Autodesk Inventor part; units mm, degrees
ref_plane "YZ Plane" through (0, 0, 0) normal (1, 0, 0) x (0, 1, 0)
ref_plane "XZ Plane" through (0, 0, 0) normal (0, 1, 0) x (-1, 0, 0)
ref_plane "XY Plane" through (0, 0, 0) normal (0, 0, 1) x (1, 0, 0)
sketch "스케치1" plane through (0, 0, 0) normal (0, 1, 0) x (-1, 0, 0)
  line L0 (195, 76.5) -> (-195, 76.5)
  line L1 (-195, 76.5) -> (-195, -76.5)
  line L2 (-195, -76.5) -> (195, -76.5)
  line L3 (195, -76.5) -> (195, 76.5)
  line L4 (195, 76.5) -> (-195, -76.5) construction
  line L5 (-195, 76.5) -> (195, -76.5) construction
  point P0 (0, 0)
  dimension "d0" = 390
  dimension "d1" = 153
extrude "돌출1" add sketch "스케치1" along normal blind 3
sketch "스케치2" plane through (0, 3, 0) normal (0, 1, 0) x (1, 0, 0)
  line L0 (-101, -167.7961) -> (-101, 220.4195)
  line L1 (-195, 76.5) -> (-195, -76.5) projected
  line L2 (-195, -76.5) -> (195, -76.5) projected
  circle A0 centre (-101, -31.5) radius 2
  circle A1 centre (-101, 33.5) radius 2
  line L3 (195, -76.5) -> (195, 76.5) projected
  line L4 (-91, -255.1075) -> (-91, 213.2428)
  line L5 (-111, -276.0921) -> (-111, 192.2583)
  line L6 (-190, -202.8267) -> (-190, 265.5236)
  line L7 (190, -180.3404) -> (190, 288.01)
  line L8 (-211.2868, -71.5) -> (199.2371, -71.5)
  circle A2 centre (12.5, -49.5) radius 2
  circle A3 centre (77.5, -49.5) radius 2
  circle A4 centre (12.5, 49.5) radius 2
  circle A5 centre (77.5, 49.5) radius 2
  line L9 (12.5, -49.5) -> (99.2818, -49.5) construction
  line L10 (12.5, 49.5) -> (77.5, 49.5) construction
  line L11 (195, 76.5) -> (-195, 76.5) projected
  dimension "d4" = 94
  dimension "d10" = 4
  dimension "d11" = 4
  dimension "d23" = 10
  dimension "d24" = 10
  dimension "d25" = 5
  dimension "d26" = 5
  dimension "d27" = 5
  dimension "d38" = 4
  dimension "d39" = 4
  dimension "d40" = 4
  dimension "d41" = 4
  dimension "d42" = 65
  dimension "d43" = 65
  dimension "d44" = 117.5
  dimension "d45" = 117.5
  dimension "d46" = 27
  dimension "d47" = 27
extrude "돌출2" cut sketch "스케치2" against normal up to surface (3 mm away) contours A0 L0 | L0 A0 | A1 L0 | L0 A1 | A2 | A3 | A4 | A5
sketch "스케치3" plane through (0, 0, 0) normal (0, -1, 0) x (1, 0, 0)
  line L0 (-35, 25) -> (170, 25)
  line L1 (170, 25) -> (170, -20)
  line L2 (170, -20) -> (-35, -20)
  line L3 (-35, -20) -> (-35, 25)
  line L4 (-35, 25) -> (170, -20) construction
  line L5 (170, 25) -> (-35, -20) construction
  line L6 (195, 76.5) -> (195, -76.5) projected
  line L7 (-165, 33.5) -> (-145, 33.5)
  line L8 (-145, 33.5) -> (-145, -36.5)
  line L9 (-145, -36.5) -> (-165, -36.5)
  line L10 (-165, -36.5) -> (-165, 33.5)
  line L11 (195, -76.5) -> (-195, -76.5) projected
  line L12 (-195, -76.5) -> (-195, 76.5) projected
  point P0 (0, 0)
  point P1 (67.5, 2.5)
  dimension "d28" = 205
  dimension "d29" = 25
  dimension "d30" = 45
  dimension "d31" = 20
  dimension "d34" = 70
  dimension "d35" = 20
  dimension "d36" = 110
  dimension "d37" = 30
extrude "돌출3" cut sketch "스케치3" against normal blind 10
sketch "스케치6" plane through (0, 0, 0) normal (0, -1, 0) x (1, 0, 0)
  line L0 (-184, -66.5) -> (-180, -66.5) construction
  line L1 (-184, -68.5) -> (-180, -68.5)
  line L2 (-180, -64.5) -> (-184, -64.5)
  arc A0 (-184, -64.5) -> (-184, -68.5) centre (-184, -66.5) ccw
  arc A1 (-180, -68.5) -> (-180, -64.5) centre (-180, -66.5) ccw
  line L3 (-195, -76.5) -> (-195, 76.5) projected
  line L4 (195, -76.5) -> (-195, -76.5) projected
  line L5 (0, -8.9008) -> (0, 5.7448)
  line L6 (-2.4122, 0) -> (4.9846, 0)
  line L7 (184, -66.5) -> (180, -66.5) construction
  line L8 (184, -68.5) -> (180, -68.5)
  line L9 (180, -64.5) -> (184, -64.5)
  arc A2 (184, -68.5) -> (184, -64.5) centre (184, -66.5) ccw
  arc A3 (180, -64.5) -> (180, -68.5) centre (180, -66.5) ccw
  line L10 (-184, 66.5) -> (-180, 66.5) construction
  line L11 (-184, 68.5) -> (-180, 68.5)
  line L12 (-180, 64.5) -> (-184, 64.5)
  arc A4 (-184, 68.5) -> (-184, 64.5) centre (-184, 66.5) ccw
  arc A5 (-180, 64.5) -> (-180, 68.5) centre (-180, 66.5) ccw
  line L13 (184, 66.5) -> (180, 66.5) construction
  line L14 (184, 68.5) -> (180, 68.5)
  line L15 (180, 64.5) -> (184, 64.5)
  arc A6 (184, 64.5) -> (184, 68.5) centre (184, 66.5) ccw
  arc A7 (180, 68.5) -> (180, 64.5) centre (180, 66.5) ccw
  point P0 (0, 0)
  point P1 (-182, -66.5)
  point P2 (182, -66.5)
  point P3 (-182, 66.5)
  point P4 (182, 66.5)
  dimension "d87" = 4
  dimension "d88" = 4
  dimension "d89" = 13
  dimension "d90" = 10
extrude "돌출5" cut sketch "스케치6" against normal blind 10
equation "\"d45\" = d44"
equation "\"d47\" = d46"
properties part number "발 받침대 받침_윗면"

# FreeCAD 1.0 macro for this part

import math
import FreeCAD as App
import Part
import Sketcher
Q = App.Units.Quantity


def add_polygon(sketch, points):
    """Adds a closed chain of lines whose ends are joined by coincident constraints."""
    first, n = sketch.GeometryCount, len(points)
    for a, b in zip(points, points[1:] + points[:1]):
        sketch.addGeometry(Part.LineSegment(App.Vector(*a, 0), App.Vector(*b, 0)), False)
    for i in range(n):
        sketch.addConstraint(Sketcher.Constraint("Coincident", first + i, 2, first + (i + 1) % n, 1))

doc = App.newDocument("Part")
params = doc.addObject("Spreadsheet::Sheet", "Params")
for row, (alias, value) in enumerate([
    ("sketch1_width", "390 mm"),
    ("sketch1_height", "153 mm"),
    ("pad1_length", "3 mm"),
    ("sketch2_diameter", "4 mm"),
    ("pocket1_length", "3 mm"),
    ("sketch3_width", "205 mm"),
    ("sketch3_width2", "20 mm"),
    ("sketch3_height", "45 mm"),
    ("sketch3_height2", "70 mm"),
    ("pocket2_length", "10 mm"),
    ("sketch4_radius", "2 mm"),
    ("sketch4_width", "4 mm"),
    ("pocket3_length", "10 mm"),
], start=1):
    params.set(f"A{row}", alias)
    params.set(f"B{row}", "=" + value)
    params.setAlias(f"B{row}", alias)

body = doc.addObject("PartDesign::Body", "Body")

# Sketch on XZ plane
sketch1 = body.newObject("Sketcher::SketchObject", "Sketch")
sketch1.AttachmentSupport = (doc.getObject("XZ_Plane"), [""])
sketch1.MapMode = "FlatFace"
add_polygon(sketch1, [(-195, -76), (-195, 76), (195, 76), (195, -76)])  # lines 0-3
sketch1.addConstraint(Sketcher.Constraint("Vertical", 0))
sketch1.addConstraint(Sketcher.Constraint("Horizontal", 1))
sketch1.addConstraint(Sketcher.Constraint("Vertical", 2))
sketch1.addConstraint(Sketcher.Constraint("Horizontal", 3))
sketch1.addConstraint(Sketcher.Constraint("Symmetric", 0, 2, 2, 2, -1, 1))
sketch1.addConstraint(Sketcher.Constraint("DistanceX", 1, 1, 1, 2, Q("390 mm")))
sketch1.addConstraint(Sketcher.Constraint("DistanceY", 0, 1, 0, 2, Q("153 mm")))
sketch1.setExpression("Constraints[9]", "Params.sketch1_width")
sketch1.setExpression("Constraints[10]", "Params.sketch1_height")
pad1 = body.newObject("PartDesign::Pad", "Pad")
pad1.Profile = sketch1
pad1.setExpression("Length", "Params.pad1_length")
pad1.Reversed = True

# Sketch on XZ plane
sketch2 = body.newObject("Sketcher::SketchObject", "Sketch001")
sketch2.AttachmentSupport = (doc.getObject("XZ_Plane"), [""])
sketch2.MapMode = "FlatFace"
sketch2.AttachmentOffset = App.Placement(App.Vector(0, 0, -3), App.Rotation())
sketch2.addGeometry(Part.Circle(App.Vector(-101, 31.5, 0), App.Vector(0, 0, 1), 2), False)
sketch2.addGeometry(Part.Circle(App.Vector(-101, -33.5, 0), App.Vector(0, 0, 1), 2), False)
sketch2.addGeometry(Part.Circle(App.Vector(12.5, 49.5, 0), App.Vector(0, 0, 1), 2), False)
sketch2.addGeometry(Part.Circle(App.Vector(77.5, 49.5, 0), App.Vector(0, 0, 1), 2), False)
sketch2.addGeometry(Part.Circle(App.Vector(12.5, -49.5, 0), App.Vector(0, 0, 1), 2), False)
sketch2.addGeometry(Part.Circle(App.Vector(77.5, -49.5, 0), App.Vector(0, 0, 1), 2), False)
sketch2.addConstraint(Sketcher.Constraint("Equal", 0, 1))
sketch2.addConstraint(Sketcher.Constraint("Equal", 1, 2))
sketch2.addConstraint(Sketcher.Constraint("Equal", 2, 3))
sketch2.addConstraint(Sketcher.Constraint("Equal", 3, 4))
sketch2.addConstraint(Sketcher.Constraint("Equal", 4, 5))
sketch2.addConstraint(Sketcher.Constraint("Symmetric", 2, 3, 4, 3, -1))
sketch2.addConstraint(Sketcher.Constraint("Symmetric", 3, 3, 5, 3, -1))
sketch2.addConstraint(Sketcher.Constraint("Horizontal", 2, 3, 3, 3))
sketch2.addConstraint(Sketcher.Constraint("Vertical", 0, 3, 1, 3))
sketch2.addConstraint(Sketcher.Constraint("Diameter", 0, Q("4 mm")))
sketch2.addConstraint(Sketcher.Constraint("DistanceY", 1, 3, 0, 3, Q("65 mm")))
sketch2.addConstraint(Sketcher.Constraint("DistanceX", 2, 3, 3, 3, Q("65 mm")))
sketch2.addConstraint(Sketcher.Constraint("DistanceX", 0, 3, -1, 1, Q("101 mm")))
sketch2.addConstraint(Sketcher.Constraint("DistanceY", 0, 3, 2, 3, Q("18 mm")))
sketch2.addConstraint(Sketcher.Constraint("DistanceY", 4, 3, 2, 3, Q("99 mm")))
sketch2.addConstraint(Sketcher.Constraint("DistanceX", -1, 1, 2, 3, Q("12.5 mm")))
sketch2.setExpression("Constraints[9]", "Params.sketch2_diameter")
pocket1 = body.newObject("PartDesign::Pocket", "Pocket")
pocket1.Profile = sketch2
pocket1.setExpression("Length", "Params.pocket1_length")
pocket1.Reversed = True

# Sketch on XZ plane
sketch3 = body.newObject("Sketcher::SketchObject", "Sketch002")
sketch3.AttachmentSupport = (doc.getObject("XZ_Plane"), [""])
sketch3.MapMode = "FlatFace"
add_polygon(sketch3, [(170, 25), (-35, 25), (-35, -20), (170, -20)])  # lines 0-3
add_polygon(sketch3, [(-145, 34), (-165, 34), (-165, -36), (-145, -36)])  # lines 4-7
sketch3.addConstraint(Sketcher.Constraint("Horizontal", 0))
sketch3.addConstraint(Sketcher.Constraint("Vertical", 1))
sketch3.addConstraint(Sketcher.Constraint("Horizontal", 2))
sketch3.addConstraint(Sketcher.Constraint("Vertical", 3))
sketch3.addConstraint(Sketcher.Constraint("Horizontal", 4))
sketch3.addConstraint(Sketcher.Constraint("Vertical", 5))
sketch3.addConstraint(Sketcher.Constraint("Horizontal", 6))
sketch3.addConstraint(Sketcher.Constraint("Vertical", 7))
sketch3.addConstraint(Sketcher.Constraint("DistanceX", 0, 2, 0, 1, Q("205 mm")))
sketch3.addConstraint(Sketcher.Constraint("DistanceX", 4, 2, 4, 1, Q("20 mm")))
sketch3.addConstraint(Sketcher.Constraint("DistanceY", 1, 2, 1, 1, Q("45 mm")))
sketch3.addConstraint(Sketcher.Constraint("DistanceY", 5, 2, 5, 1, Q("70 mm")))
sketch3.addConstraint(Sketcher.Constraint("DistanceY", -1, 1, 0, 2, Q("25 mm")))
sketch3.addConstraint(Sketcher.Constraint("DistanceX", 6, 2, 1, 2, Q("110 mm")))
sketch3.addConstraint(Sketcher.Constraint("DistanceX", 0, 2, -1, 1, Q("35 mm")))
sketch3.addConstraint(Sketcher.Constraint("DistanceY", -1, 1, 4, 2, Q("33.5 mm")))
sketch3.setExpression("Constraints[16]", "Params.sketch3_width")
sketch3.setExpression("Constraints[17]", "Params.sketch3_width2")
sketch3.setExpression("Constraints[18]", "Params.sketch3_height")
sketch3.setExpression("Constraints[19]", "Params.sketch3_height2")
pocket2 = body.newObject("PartDesign::Pocket", "Pocket001")
pocket2.Profile = sketch3
pocket2.setExpression("Length", "Params.pocket2_length")

# Sketch on XZ plane
sketch4 = body.newObject("Sketcher::SketchObject", "Sketch003")
sketch4.AttachmentSupport = (doc.getObject("XZ_Plane"), [""])
sketch4.MapMode = "FlatFace"
sketch4.addGeometry(Part.ArcOfCircle(Part.Circle(App.Vector(-184, -66.5, 0), App.Vector(0, 0, 1), 2), math.radians(90), math.radians(270)), False)
sketch4.addGeometry(Part.LineSegment(App.Vector(-184, -68.5, 0), App.Vector(-180, -68.5, 0)), False)
sketch4.addGeometry(Part.ArcOfCircle(Part.Circle(App.Vector(-180, -66.5, 0), App.Vector(0, 0, 1), 2), math.radians(-90), math.radians(90)), False)
sketch4.addGeometry(Part.LineSegment(App.Vector(-180, -64.5, 0), App.Vector(-184, -64.5, 0)), False)
sketch4.addGeometry(Part.LineSegment(App.Vector(180, -68.5, 0), App.Vector(184, -68.5, 0)), False)
sketch4.addGeometry(Part.ArcOfCircle(Part.Circle(App.Vector(184, -66.5, 0), App.Vector(0, 0, 1), 2), math.radians(-90), math.radians(90)), False)
sketch4.addGeometry(Part.LineSegment(App.Vector(184, -64.5, 0), App.Vector(180, -64.5, 0)), False)
sketch4.addGeometry(Part.ArcOfCircle(Part.Circle(App.Vector(180, -66.5, 0), App.Vector(0, 0, 1), 2), math.radians(90), math.radians(270)), False)
sketch4.addGeometry(Part.LineSegment(App.Vector(-180, 68.5, 0), App.Vector(-184, 68.5, 0)), False)
sketch4.addGeometry(Part.ArcOfCircle(Part.Circle(App.Vector(-184, 66.5, 0), App.Vector(0, 0, 1), 2), math.radians(90), math.radians(270)), False)
sketch4.addGeometry(Part.LineSegment(App.Vector(-184, 64.5, 0), App.Vector(-180, 64.5, 0)), False)
sketch4.addGeometry(Part.ArcOfCircle(Part.Circle(App.Vector(-180, 66.5, 0), App.Vector(0, 0, 1), 2), math.radians(-90), math.radians(90)), False)
sketch4.addGeometry(Part.ArcOfCircle(Part.Circle(App.Vector(184, 66.5, 0), App.Vector(0, 0, 1), 2), math.radians(-90), math.radians(90)), False)
sketch4.addGeometry(Part.LineSegment(App.Vector(184, 68.5, 0), App.Vector(180, 68.5, 0)), False)
sketch4.addGeometry(Part.ArcOfCircle(Part.Circle(App.Vector(180, 66.5, 0), App.Vector(0, 0, 1), 2), math.radians(90), math.radians(270)), False)
sketch4.addGeometry(Part.LineSegment(App.Vector(180, 64.5, 0), App.Vector(184, 64.5, 0)), False)
sketch4.addConstraint(Sketcher.Constraint("Tangent", 0, 2, 1, 1))
sketch4.addConstraint(Sketcher.Constraint("Tangent", 1, 2, 2, 1))
sketch4.addConstraint(Sketcher.Constraint("Tangent", 2, 2, 3, 1))
sketch4.addConstraint(Sketcher.Constraint("Tangent", 3, 2, 0, 1))
sketch4.addConstraint(Sketcher.Constraint("Tangent", 4, 2, 5, 1))
sketch4.addConstraint(Sketcher.Constraint("Tangent", 5, 2, 6, 1))
sketch4.addConstraint(Sketcher.Constraint("Tangent", 6, 2, 7, 1))
sketch4.addConstraint(Sketcher.Constraint("Tangent", 7, 2, 4, 1))
sketch4.addConstraint(Sketcher.Constraint("Tangent", 8, 2, 9, 1))
sketch4.addConstraint(Sketcher.Constraint("Tangent", 9, 2, 10, 1))
sketch4.addConstraint(Sketcher.Constraint("Tangent", 10, 2, 11, 1))
sketch4.addConstraint(Sketcher.Constraint("Tangent", 11, 2, 8, 1))
sketch4.addConstraint(Sketcher.Constraint("Tangent", 12, 2, 13, 1))
sketch4.addConstraint(Sketcher.Constraint("Tangent", 13, 2, 14, 1))
sketch4.addConstraint(Sketcher.Constraint("Tangent", 14, 2, 15, 1))
sketch4.addConstraint(Sketcher.Constraint("Tangent", 15, 2, 12, 1))
sketch4.addConstraint(Sketcher.Constraint("Horizontal", 1))
sketch4.addConstraint(Sketcher.Constraint("Horizontal", 3))
sketch4.addConstraint(Sketcher.Constraint("Horizontal", 4))
sketch4.addConstraint(Sketcher.Constraint("Horizontal", 6))
sketch4.addConstraint(Sketcher.Constraint("Horizontal", 8))
sketch4.addConstraint(Sketcher.Constraint("Horizontal", 10))
sketch4.addConstraint(Sketcher.Constraint("Horizontal", 13))
sketch4.addConstraint(Sketcher.Constraint("Horizontal", 15))
sketch4.addConstraint(Sketcher.Constraint("Equal", 2, 5))
sketch4.addConstraint(Sketcher.Constraint("Equal", 7, 9))
sketch4.addConstraint(Sketcher.Constraint("Equal", 11, 12))
sketch4.addConstraint(Sketcher.Constraint("Symmetric", 5, 3, 9, 3, -1, 1))
sketch4.addConstraint(Sketcher.Constraint("Symmetric", 0, 3, 12, 3, -1, 1))
sketch4.addConstraint(Sketcher.Constraint("Symmetric", 0, 3, 5, 3, -2))
sketch4.addConstraint(Sketcher.Constraint("Vertical", 2, 3, 11, 3))
sketch4.addConstraint(Sketcher.Constraint("Vertical", 7, 3, 14, 3))
sketch4.addConstraint(Sketcher.Constraint("Equal", 3, 4))
sketch4.addConstraint(Sketcher.Constraint("Radius", 0, Q("2 mm")))
sketch4.addConstraint(Sketcher.Constraint("DistanceX", 1, 1, 1, 2, Q("4 mm")))
sketch4.addConstraint(Sketcher.Constraint("DistanceX", 0, 3, -1, 1, Q("184 mm")))
sketch4.addConstraint(Sketcher.Constraint("DistanceY", 0, 3, 9, 3, Q("133 mm")))
sketch4.setExpression("Constraints[33]", "Params.sketch4_radius")
sketch4.setExpression("Constraints[34]", "Params.sketch4_width")
pocket3 = body.newObject("PartDesign::Pocket", "Pocket002")
pocket3.Profile = sketch4
pocket3.setExpression("Length", "Params.pocket3_length")

doc.recompute()
